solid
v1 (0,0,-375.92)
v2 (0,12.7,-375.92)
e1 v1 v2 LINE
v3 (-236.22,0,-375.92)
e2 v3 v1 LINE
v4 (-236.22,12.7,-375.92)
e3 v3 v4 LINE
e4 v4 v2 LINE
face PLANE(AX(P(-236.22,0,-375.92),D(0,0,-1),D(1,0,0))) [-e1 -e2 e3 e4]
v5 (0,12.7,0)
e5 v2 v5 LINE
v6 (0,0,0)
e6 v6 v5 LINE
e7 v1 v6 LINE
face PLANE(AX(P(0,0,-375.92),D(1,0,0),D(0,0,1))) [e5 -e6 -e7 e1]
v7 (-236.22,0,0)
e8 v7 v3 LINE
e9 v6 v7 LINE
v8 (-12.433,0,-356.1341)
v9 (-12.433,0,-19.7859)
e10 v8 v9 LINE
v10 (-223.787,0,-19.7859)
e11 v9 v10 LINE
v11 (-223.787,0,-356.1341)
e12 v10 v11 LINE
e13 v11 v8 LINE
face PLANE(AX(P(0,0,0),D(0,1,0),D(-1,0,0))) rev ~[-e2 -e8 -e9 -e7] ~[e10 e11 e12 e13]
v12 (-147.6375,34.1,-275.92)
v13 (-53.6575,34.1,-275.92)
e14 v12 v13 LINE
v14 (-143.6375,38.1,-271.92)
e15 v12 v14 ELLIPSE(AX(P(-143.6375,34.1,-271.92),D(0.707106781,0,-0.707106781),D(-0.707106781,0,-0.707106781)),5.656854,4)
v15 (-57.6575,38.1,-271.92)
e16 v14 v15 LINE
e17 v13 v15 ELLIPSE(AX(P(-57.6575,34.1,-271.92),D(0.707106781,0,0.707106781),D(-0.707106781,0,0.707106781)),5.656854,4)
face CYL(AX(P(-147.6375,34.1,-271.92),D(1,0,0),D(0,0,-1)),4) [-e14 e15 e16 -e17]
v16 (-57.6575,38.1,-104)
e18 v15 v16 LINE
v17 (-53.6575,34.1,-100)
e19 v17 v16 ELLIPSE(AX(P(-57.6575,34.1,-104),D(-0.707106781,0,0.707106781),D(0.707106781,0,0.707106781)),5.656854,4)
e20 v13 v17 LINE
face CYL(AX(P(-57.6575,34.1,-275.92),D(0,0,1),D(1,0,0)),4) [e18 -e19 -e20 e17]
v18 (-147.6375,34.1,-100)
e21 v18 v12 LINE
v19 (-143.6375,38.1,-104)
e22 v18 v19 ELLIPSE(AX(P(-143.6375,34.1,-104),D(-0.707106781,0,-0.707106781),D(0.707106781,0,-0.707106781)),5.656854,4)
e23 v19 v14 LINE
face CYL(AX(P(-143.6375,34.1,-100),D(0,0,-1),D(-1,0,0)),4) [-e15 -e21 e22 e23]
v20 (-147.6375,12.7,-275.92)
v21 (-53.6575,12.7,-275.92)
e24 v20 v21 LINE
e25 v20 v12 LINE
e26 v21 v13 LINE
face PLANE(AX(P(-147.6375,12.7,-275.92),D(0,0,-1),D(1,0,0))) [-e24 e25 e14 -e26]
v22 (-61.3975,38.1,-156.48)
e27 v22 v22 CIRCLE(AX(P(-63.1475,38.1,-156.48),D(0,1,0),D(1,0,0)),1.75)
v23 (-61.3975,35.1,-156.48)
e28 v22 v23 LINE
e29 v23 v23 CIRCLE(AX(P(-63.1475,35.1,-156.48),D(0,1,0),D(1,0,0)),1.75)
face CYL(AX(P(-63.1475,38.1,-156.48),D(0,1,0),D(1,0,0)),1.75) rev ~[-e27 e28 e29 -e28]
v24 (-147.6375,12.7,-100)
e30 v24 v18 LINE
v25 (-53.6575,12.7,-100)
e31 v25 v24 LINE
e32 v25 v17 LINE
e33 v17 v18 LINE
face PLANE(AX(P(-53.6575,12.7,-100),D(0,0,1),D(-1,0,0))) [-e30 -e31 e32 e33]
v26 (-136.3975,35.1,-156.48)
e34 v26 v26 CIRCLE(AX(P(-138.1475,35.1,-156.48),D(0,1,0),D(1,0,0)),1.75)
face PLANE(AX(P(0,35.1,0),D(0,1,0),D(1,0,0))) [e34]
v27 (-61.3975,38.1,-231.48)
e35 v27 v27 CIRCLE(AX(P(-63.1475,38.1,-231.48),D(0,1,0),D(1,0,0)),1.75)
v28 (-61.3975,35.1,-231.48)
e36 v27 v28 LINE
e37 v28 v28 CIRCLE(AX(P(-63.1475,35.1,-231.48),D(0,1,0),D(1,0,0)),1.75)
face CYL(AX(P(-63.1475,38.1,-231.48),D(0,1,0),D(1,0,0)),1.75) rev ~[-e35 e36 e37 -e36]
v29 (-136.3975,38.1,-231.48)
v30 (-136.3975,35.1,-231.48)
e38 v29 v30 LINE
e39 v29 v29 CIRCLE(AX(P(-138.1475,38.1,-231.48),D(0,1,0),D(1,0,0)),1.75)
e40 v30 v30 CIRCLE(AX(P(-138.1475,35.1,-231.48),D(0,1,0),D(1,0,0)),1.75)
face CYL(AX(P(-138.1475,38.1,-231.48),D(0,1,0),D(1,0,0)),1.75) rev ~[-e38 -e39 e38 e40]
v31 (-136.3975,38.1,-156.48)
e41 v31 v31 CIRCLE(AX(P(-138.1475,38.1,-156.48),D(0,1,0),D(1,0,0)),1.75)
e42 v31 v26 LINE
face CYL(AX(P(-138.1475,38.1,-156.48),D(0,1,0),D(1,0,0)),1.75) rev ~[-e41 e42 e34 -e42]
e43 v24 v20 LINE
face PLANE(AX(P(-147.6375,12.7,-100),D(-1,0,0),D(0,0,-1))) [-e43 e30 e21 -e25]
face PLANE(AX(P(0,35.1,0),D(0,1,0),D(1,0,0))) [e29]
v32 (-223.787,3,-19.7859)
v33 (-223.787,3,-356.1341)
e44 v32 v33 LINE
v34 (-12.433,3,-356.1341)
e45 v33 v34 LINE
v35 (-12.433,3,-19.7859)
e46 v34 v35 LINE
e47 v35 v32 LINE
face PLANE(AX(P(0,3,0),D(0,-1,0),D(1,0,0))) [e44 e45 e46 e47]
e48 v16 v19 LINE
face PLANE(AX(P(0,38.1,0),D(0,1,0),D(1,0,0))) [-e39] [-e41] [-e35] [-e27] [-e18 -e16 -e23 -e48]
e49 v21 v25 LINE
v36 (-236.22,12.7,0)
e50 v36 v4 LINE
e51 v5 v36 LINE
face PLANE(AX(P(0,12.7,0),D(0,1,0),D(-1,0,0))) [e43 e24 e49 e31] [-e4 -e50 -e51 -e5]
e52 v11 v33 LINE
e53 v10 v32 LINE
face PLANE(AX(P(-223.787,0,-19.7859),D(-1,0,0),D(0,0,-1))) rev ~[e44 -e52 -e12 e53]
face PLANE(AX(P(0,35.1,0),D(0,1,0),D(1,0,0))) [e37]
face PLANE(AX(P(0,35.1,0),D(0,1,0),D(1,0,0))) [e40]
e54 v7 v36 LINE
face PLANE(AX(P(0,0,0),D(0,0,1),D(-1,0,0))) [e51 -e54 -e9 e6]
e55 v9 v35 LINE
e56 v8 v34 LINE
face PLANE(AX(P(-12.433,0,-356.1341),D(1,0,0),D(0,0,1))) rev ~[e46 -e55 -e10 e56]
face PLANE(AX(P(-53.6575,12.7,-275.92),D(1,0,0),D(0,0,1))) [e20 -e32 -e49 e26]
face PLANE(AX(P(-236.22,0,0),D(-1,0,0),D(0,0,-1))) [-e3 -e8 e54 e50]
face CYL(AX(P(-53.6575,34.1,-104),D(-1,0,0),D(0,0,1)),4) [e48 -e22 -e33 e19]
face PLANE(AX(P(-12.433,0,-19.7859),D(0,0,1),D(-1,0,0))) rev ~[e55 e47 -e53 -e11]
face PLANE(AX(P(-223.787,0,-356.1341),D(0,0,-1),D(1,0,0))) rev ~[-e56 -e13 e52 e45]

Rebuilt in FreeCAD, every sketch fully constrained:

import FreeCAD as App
import Part
import Sketcher

V = App.Vector
Q = App.Units.Quantity


def edges_at(feature, points):
    """Names of the edges that pass closest to the given points."""
    edges = feature.Shape.Edges
    near = lambda p: min(range(len(edges)), key=lambda i: edges[i].distToShape(Part.Vertex(*p))[0])
    return sorted({f"Edge{near(p) + 1}" for p in points})

doc = App.newDocument("Part")
body = doc.addObject("PartDesign::Body", "Body")

# Sketch on XZ plane
sketch1 = body.newObject("Sketcher::SketchObject", "Sketch")
sketch1.AttachmentSupport = (doc.getObject("XZ_Plane"), [""])
sketch1.MapMode = "FlatFace"
sketch1.addGeometry(Part.LineSegment(V(-236.22, 0, 0), V(0, 0, 0)), False)
sketch1.addGeometry(Part.LineSegment(V(0, 0, 0), V(0, -375.92, 0)), False)
sketch1.addGeometry(Part.LineSegment(V(0, -375.92, 0), V(-236.22, -375.92, 0)), False)
sketch1.addGeometry(Part.LineSegment(V(-236.22, -375.92, 0), V(-236.22, 0, 0)), False)
sketch1.addConstraint(Sketcher.Constraint("Coincident", 0, 2, 1, 1))
sketch1.addConstraint(Sketcher.Constraint("Coincident", 1, 2, 2, 1))
sketch1.addConstraint(Sketcher.Constraint("Coincident", 2, 2, 3, 1))
sketch1.addConstraint(Sketcher.Constraint("Coincident", 3, 2, 0, 1))
sketch1.addConstraint(Sketcher.Constraint("Horizontal", 0))
sketch1.addConstraint(Sketcher.Constraint("Vertical", 1))
sketch1.addConstraint(Sketcher.Constraint("Horizontal", 2))
sketch1.addConstraint(Sketcher.Constraint("Vertical", 3))
sketch1.addConstraint(Sketcher.Constraint("Coincident", 0, 2, -1, 1))
sketch1.addConstraint(Sketcher.Constraint("DistanceX", 0, 1, 0, 2, Q("9.3 in")))
sketch1.addConstraint(Sketcher.Constraint("DistanceY", 1, 2, 1, 1, Q("14.8 in")))
pad1 = body.newObject("PartDesign::Pad", "Pad")
pad1.Profile = sketch1
pad1.Length = Q("0.5 in")
pad1.Reversed = True

# Sketch on XZ plane
sketch2 = body.newObject("Sketcher::SketchObject", "Sketch001")
sketch2.AttachmentSupport = (doc.getObject("XZ_Plane"), [""])
sketch2.MapMode = "FlatFace"
sketch2.AttachmentOffset = App.Placement(V(0, 0, -0.5 * 25.4), App.Rotation())
sketch2.addGeometry(Part.LineSegment(V(-147.6375, -275.92, 0), V(-147.6375, -100, 0)), False)
sketch2.addGeometry(Part.LineSegment(V(-147.6375, -100, 0), V(-53.6575, -100, 0)), False)
sketch2.addGeometry(Part.LineSegment(V(-53.6575, -100, 0), V(-53.6575, -275.92, 0)), False)
sketch2.addGeometry(Part.LineSegment(V(-53.6575, -275.92, 0), V(-147.6375, -275.92, 0)), False)
sketch2.addConstraint(Sketcher.Constraint("Coincident", 0, 2, 1, 1))
sketch2.addConstraint(Sketcher.Constraint("Coincident", 1, 2, 2, 1))
sketch2.addConstraint(Sketcher.Constraint("Coincident", 2, 2, 3, 1))
sketch2.addConstraint(Sketcher.Constraint("Coincident", 3, 2, 0, 1))
sketch2.addConstraint(Sketcher.Constraint("Vertical", 0))
sketch2.addConstraint(Sketcher.Constraint("Horizontal", 1))
sketch2.addConstraint(Sketcher.Constraint("Vertical", 2))
sketch2.addConstraint(Sketcher.Constraint("Horizontal", 3))
sketch2.addConstraint(Sketcher.Constraint("DistanceX", 1, 1, 1, 2, Q("3.7 in")))
sketch2.addConstraint(Sketcher.Constraint("DistanceY", 0, 2, -1, 1, Q("3.937 in")))
sketch2.addConstraint(Sketcher.Constraint("DistanceY", 0, 1, 0, 2, Q("175.92 mm")))
sketch2.addConstraint(Sketcher.Constraint("DistanceX", 0, 2, -1, 1, Q("5.8125 in")))
pad2 = body.newObject("PartDesign::Pad", "Pad001")
pad2.Profile = sketch2
pad2.Length = Q("1 in")
pad2.Reversed = True
doc.recompute()

fillet = body.newObject("PartDesign::Fillet", "Fillet")
fillet.Base = (pad2, edges_at(pad2, [
    (-147.637, 38.1, -187.96),
    (-53.657, 38.1, -187.96),
    (-100.647, 38.1, -100),
    (-100.647, 38.1, -275.92),
]))
fillet.Radius = 4

# Sketch on XZ plane
sketch3 = body.newObject("Sketcher::SketchObject", "Sketch002")
sketch3.AttachmentSupport = (doc.getObject("XZ_Plane"), [""])
sketch3.MapMode = "FlatFace"
sketch3.addGeometry(Part.LineSegment(V(-12.433, -356.1341, 0), V(-12.433, -19.7859, 0)), False)
sketch3.addGeometry(Part.LineSegment(V(-12.433, -19.7859, 0), V(-223.787, -19.7859, 0)), False)
sketch3.addGeometry(Part.LineSegment(V(-223.787, -19.7859, 0), V(-223.787, -356.1341, 0)), False)
sketch3.addGeometry(Part.LineSegment(V(-223.787, -356.1341, 0), V(-12.433, -356.1341, 0)), False)
sketch3.addConstraint(Sketcher.Constraint("Coincident", 0, 2, 1, 1))
sketch3.addConstraint(Sketcher.Constraint("Coincident", 1, 2, 2, 1))
sketch3.addConstraint(Sketcher.Constraint("Coincident", 2, 2, 3, 1))
sketch3.addConstraint(Sketcher.Constraint("Coincident", 3, 2, 0, 1))
sketch3.addConstraint(Sketcher.Constraint("Vertical", 0))
sketch3.addConstraint(Sketcher.Constraint("Horizontal", 1))
sketch3.addConstraint(Sketcher.Constraint("Vertical", 2))
sketch3.addConstraint(Sketcher.Constraint("Horizontal", 3))
sketch3.addConstraint(Sketcher.Constraint("DistanceX", 1, 2, 1, 1, Q("211.354 mm")))
sketch3.addConstraint(Sketcher.Constraint("DistanceY", 0, 1, 0, 2, Q("336.3482 mm")))
sketch3.addConstraint(Sketcher.Constraint("DistanceX", 0, 2, -1, 1, Q("0.4895 in")))
sketch3.addConstraint(Sketcher.Constraint("DistanceY", 0, 2, -1, 1, Q("19.786 mm")))
pocket1 = body.newObject("PartDesign::Pocket", "Pocket")
pocket1.Profile = sketch3
pocket1.Length = Q("0.1181102 in")

# Sketch on XZ plane
sketch4 = body.newObject("Sketcher::SketchObject", "Sketch003")
sketch4.AttachmentSupport = (doc.getObject("XZ_Plane"), [""])
sketch4.MapMode = "FlatFace"
sketch4.AttachmentOffset = App.Placement(V(0, 0, -1.5 * 25.4), App.Rotation())
sketch4.addGeometry(Part.Circle(V(-138.1475, -231.48, 0), V(0, 0, 1), 1.75), False)
sketch4.addGeometry(Part.Circle(V(-63.1475, -231.48, 0), V(0, 0, 1), 1.75), False)
sketch4.addGeometry(Part.Circle(V(-138.1475, -156.48, 0), V(0, 0, 1), 1.75), False)
sketch4.addGeometry(Part.Circle(V(-63.1475, -156.48, 0), V(0, 0, 1), 1.75), False)
sketch4.addConstraint(Sketcher.Constraint("Equal", 0, 1))
sketch4.addConstraint(Sketcher.Constraint("Equal", 1, 2))
sketch4.addConstraint(Sketcher.Constraint("Equal", 2, 3))
sketch4.addConstraint(Sketcher.Constraint("Horizontal", 0, 3, 1, 3))
sketch4.addConstraint(Sketcher.Constraint("Horizontal", 2, 3, 3, 3))
sketch4.addConstraint(Sketcher.Constraint("Vertical", 0, 3, 2, 3))
sketch4.addConstraint(Sketcher.Constraint("Vertical", 1, 3, 3, 3))
sketch4.addConstraint(Sketcher.Constraint("Diameter", 0, Q("0.1378 in")))
sketch4.addConstraint(Sketcher.Constraint("DistanceX", 0, 3, 1, 3, Q("75 mm")))
sketch4.addConstraint(Sketcher.Constraint("DistanceY", 0, 3, 2, 3, Q("75 mm")))
sketch4.addConstraint(Sketcher.Constraint("DistanceX", 0, 3, -1, 1, Q("138.1475 mm")))
sketch4.addConstraint(Sketcher.Constraint("DistanceY", 0, 3, -1, 1, Q("231.48 mm")))
pocket2 = body.newObject("PartDesign::Pocket", "Pocket001")
pocket2.Profile = sketch4
pocket2.Length = Q("0.1181102 in")
pocket2.Reversed = True

doc.recompute()
